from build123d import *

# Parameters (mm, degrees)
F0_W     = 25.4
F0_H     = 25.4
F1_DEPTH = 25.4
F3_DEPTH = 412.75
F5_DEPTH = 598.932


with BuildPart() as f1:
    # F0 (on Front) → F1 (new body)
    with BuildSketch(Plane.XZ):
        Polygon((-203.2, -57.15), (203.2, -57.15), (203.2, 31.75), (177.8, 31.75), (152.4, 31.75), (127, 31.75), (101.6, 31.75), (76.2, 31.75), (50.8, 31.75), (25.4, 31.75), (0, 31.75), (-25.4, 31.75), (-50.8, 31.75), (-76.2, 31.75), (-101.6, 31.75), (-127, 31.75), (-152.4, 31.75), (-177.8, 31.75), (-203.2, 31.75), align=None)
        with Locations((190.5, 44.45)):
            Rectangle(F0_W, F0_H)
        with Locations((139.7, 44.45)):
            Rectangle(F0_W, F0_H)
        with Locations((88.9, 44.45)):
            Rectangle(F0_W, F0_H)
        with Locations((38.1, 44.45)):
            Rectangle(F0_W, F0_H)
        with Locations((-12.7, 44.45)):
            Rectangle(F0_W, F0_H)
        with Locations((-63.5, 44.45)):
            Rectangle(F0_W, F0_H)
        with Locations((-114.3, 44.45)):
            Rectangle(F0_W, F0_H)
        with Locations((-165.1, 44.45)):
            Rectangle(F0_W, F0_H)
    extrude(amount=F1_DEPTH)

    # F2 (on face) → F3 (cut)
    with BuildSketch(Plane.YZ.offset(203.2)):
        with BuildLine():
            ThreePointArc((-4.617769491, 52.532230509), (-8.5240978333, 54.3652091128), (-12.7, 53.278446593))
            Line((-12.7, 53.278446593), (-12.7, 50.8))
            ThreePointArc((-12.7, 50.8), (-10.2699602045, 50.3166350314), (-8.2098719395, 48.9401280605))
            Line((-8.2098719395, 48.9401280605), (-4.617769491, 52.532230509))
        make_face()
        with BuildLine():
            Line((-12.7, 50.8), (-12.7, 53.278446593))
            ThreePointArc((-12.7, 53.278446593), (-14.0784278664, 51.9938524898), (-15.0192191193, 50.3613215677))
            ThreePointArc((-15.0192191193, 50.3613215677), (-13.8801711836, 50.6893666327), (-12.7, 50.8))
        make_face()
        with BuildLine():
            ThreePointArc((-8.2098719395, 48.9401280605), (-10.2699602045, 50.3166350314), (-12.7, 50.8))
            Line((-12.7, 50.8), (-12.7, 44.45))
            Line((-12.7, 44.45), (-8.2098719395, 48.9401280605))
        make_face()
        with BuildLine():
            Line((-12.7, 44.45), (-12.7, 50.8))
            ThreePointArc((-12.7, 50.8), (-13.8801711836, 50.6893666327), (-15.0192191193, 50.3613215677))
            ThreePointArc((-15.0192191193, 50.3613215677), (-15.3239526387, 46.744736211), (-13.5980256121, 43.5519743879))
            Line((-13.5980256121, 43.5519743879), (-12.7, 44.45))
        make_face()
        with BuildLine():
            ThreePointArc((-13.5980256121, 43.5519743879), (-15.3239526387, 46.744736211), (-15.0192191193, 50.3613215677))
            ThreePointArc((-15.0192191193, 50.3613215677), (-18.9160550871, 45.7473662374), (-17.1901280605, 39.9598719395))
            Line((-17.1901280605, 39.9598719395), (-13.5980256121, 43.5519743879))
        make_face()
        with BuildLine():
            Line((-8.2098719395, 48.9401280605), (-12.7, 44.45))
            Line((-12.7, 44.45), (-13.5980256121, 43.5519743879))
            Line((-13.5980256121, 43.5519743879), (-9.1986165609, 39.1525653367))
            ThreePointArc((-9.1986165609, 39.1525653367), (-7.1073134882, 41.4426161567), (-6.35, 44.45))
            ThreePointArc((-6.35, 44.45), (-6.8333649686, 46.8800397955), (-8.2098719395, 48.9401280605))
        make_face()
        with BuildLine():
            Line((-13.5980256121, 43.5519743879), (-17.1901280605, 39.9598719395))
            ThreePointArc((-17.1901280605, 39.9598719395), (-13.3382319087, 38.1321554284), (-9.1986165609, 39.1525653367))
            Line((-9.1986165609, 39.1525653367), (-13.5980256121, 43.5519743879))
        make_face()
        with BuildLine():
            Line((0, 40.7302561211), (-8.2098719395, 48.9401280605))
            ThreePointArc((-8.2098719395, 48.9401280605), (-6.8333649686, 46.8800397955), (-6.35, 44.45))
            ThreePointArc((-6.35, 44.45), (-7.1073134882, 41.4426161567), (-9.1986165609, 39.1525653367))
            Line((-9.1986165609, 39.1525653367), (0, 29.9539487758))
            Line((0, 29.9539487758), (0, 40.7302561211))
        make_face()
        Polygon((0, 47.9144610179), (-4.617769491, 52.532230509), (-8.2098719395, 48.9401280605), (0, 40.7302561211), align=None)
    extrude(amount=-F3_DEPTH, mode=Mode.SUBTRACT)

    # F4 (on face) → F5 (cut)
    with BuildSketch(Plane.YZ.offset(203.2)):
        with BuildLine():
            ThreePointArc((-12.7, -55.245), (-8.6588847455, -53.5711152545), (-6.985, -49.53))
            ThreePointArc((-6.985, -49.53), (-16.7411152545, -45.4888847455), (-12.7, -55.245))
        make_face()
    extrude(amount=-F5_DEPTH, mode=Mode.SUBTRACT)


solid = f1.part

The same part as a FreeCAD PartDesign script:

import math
import FreeCAD as App
import Part
import Sketcher
Q = App.Units.Quantity

doc = App.newDocument("Part")
body = doc.addObject("PartDesign::Body", "Body")

sketch1 = body.newObject("Sketcher::SketchObject", "Sketch")
sketch1.AttachmentSupport = (doc.getObject("XZ_Plane"), [""])
sketch1.MapMode = "FlatFace"
sketch1.addGeometry(Part.LineSegment(App.Vector(-203, -57, 0), App.Vector(203, -57, 0)), False)
sketch1.addGeometry(Part.LineSegment(App.Vector(203, -57, 0), App.Vector(203, 57, 0)), False)
sketch1.addGeometry(Part.LineSegment(App.Vector(203, 57, 0), App.Vector(178, 57, 0)), False)
sketch1.addGeometry(Part.LineSegment(App.Vector(178, 57, 0), App.Vector(178, 32, 0)), False)
sketch1.addGeometry(Part.LineSegment(App.Vector(178, 32, 0), App.Vector(152, 32, 0)), False)
sketch1.addGeometry(Part.LineSegment(App.Vector(152, 32, 0), App.Vector(152, 57, 0)), False)
sketch1.addGeometry(Part.LineSegment(App.Vector(152, 57, 0), App.Vector(127, 57, 0)), False)
sketch1.addGeometry(Part.LineSegment(App.Vector(127, 57, 0), App.Vector(127, 32, 0)), False)
sketch1.addGeometry(Part.LineSegment(App.Vector(127, 32, 0), App.Vector(102, 32, 0)), False)
sketch1.addGeometry(Part.LineSegment(App.Vector(102, 32, 0), App.Vector(102, 57, 0)), False)
sketch1.addGeometry(Part.LineSegment(App.Vector(102, 57, 0), App.Vector(76, 57, 0)), False)
sketch1.addGeometry(Part.LineSegment(App.Vector(76, 57, 0), App.Vector(76, 32, 0)), False)
sketch1.addGeometry(Part.LineSegment(App.Vector(76, 32, 0), App.Vector(51, 32, 0)), False)
sketch1.addGeometry(Part.LineSegment(App.Vector(51, 32, 0), App.Vector(51, 57, 0)), False)
sketch1.addGeometry(Part.LineSegment(App.Vector(51, 57, 0), App.Vector(25, 57, 0)), False)
sketch1.addGeometry(Part.LineSegment(App.Vector(25, 57, 0), App.Vector(25, 32, 0)), False)
sketch1.addGeometry(Part.LineSegment(App.Vector(25, 32, 0), App.Vector(0, 32, 0)), False)
sketch1.addGeometry(Part.LineSegment(App.Vector(0, 32, 0), App.Vector(0, 57, 0)), False)
sketch1.addGeometry(Part.LineSegment(App.Vector(0, 57, 0), App.Vector(-25, 57, 0)), False)
sketch1.addGeometry(Part.LineSegment(App.Vector(-25, 57, 0), App.Vector(-25, 32, 0)), False)
sketch1.addGeometry(Part.LineSegment(App.Vector(-25, 32, 0), App.Vector(-51, 32, 0)), False)
sketch1.addGeometry(Part.LineSegment(App.Vector(-51, 32, 0), App.Vector(-51, 57, 0)), False)
sketch1.addGeometry(Part.LineSegment(App.Vector(-51, 57, 0), App.Vector(-76, 57, 0)), False)
sketch1.addGeometry(Part.LineSegment(App.Vector(-76, 57, 0), App.Vector(-76, 32, 0)), False)
sketch1.addGeometry(Part.LineSegment(App.Vector(-76, 32, 0), App.Vector(-102, 32, 0)), False)
sketch1.addGeometry(Part.LineSegment(App.Vector(-102, 32, 0), App.Vector(-102, 57, 0)), False)
sketch1.addGeometry(Part.LineSegment(App.Vector(-102, 57, 0), App.Vector(-127, 57, 0)), False)
sketch1.addGeometry(Part.LineSegment(App.Vector(-127, 57, 0), App.Vector(-127, 32, 0)), False)
sketch1.addGeometry(Part.LineSegment(App.Vector(-127, 32, 0), App.Vector(-152, 32, 0)), False)
sketch1.addGeometry(Part.LineSegment(App.Vector(-152, 32, 0), App.Vector(-152, 57, 0)), False)
sketch1.addGeometry(Part.LineSegment(App.Vector(-152, 57, 0), App.Vector(-178, 57, 0)), False)
sketch1.addGeometry(Part.LineSegment(App.Vector(-178, 57, 0), App.Vector(-178, 32, 0)), False)
sketch1.addGeometry(Part.LineSegment(App.Vector(-178, 32, 0), App.Vector(-203, 32, 0)), False)
sketch1.addGeometry(Part.LineSegment(App.Vector(-203, 32, 0), App.Vector(-203, -57, 0)), False)
sketch1.addConstraint(Sketcher.Constraint("Coincident", 0, 2, 1, 1))
sketch1.addConstraint(Sketcher.Constraint("Coincident", 1, 2, 2, 1))
sketch1.addConstraint(Sketcher.Constraint("Coincident", 2, 2, 3, 1))
sketch1.addConstraint(Sketcher.Constraint("Coincident", 3, 2, 4, 1))
sketch1.addConstraint(Sketcher.Constraint("Coincident", 4, 2, 5, 1))
sketch1.addConstraint(Sketcher.Constraint("Coincident", 5, 2, 6, 1))
sketch1.addConstraint(Sketcher.Constraint("Coincident", 6, 2, 7, 1))
sketch1.addConstraint(Sketcher.Constraint("Coincident", 7, 2, 8, 1))
sketch1.addConstraint(Sketcher.Constraint("Coincident", 8, 2, 9, 1))
sketch1.addConstraint(Sketcher.Constraint("Coincident", 9, 2, 10, 1))
sketch1.addConstraint(Sketcher.Constraint("Coincident", 10, 2, 11, 1))
sketch1.addConstraint(Sketcher.Constraint("Coincident", 11, 2, 12, 1))
sketch1.addConstraint(Sketcher.Constraint("Coincident", 12, 2, 13, 1))
sketch1.addConstraint(Sketcher.Constraint("Coincident", 13, 2, 14, 1))
sketch1.addConstraint(Sketcher.Constraint("Coincident", 14, 2, 15, 1))
sketch1.addConstraint(Sketcher.Constraint("Coincident", 15, 2, 16, 1))
sketch1.addConstraint(Sketcher.Constraint("Coincident", 16, 2, 17, 1))
sketch1.addConstraint(Sketcher.Constraint("Coincident", 17, 2, 18, 1))
sketch1.addConstraint(Sketcher.Constraint("Coincident", 18, 2, 19, 1))
sketch1.addConstraint(Sketcher.Constraint("Coincident", 19, 2, 20, 1))
sketch1.addConstraint(Sketcher.Constraint("Coincident", 20, 2, 21, 1))
sketch1.addConstraint(Sketcher.Constraint("Coincident", 21, 2, 22, 1))
sketch1.addConstraint(Sketcher.Constraint("Coincident", 22, 2, 23, 1))
sketch1.addConstraint(Sketcher.Constraint("Coincident", 23, 2, 24, 1))
sketch1.addConstraint(Sketcher.Constraint("Coincident", 24, 2, 25, 1))
sketch1.addConstraint(Sketcher.Constraint("Coincident", 25, 2, 26, 1))
sketch1.addConstraint(Sketcher.Constraint("Coincident", 26, 2, 27, 1))
sketch1.addConstraint(Sketcher.Constraint("Coincident", 27, 2, 28, 1))
sketch1.addConstraint(Sketcher.Constraint("Coincident", 28, 2, 29, 1))
sketch1.addConstraint(Sketcher.Constraint("Coincident", 29, 2, 30, 1))
sketch1.addConstraint(Sketcher.Constraint("Coincident", 30, 2, 31, 1))
sketch1.addConstraint(Sketcher.Constraint("Coincident", 31, 2, 32, 1))
sketch1.addConstraint(Sketcher.Constraint("Coincident", 32, 2, 33, 1))
sketch1.addConstraint(Sketcher.Constraint("Coincident", 33, 2, 0, 1))
sketch1.addConstraint(Sketcher.Constraint("Horizontal", 0))
sketch1.addConstraint(Sketcher.Constraint("Vertical", 1))
sketch1.addConstraint(Sketcher.Constraint("Horizontal", 2))
sketch1.addConstraint(Sketcher.Constraint("Vertical", 3))
sketch1.addConstraint(Sketcher.Constraint("Horizontal", 4))
sketch1.addConstraint(Sketcher.Constraint("Vertical", 5))
sketch1.addConstraint(Sketcher.Constraint("Horizontal", 6))
sketch1.addConstraint(Sketcher.Constraint("Vertical", 7))
sketch1.addConstraint(Sketcher.Constraint("Horizontal", 8))
sketch1.addConstraint(Sketcher.Constraint("Vertical", 9))
sketch1.addConstraint(Sketcher.Constraint("Horizontal", 10))
sketch1.addConstraint(Sketcher.Constraint("Vertical", 11))
sketch1.addConstraint(Sketcher.Constraint("Horizontal", 12))
sketch1.addConstraint(Sketcher.Constraint("Vertical", 13))
sketch1.addConstraint(Sketcher.Constraint("Horizontal", 14))
sketch1.addConstraint(Sketcher.Constraint("Vertical", 15))
sketch1.addConstraint(Sketcher.Constraint("Horizontal", 16))
sketch1.addConstraint(Sketcher.Constraint("Vertical", 17))
sketch1.addConstraint(Sketcher.Constraint("Horizontal", 18))
sketch1.addConstraint(Sketcher.Constraint("Vertical", 19))
sketch1.addConstraint(Sketcher.Constraint("Horizontal", 20))
sketch1.addConstraint(Sketcher.Constraint("Vertical", 21))
sketch1.addConstraint(Sketcher.Constraint("Horizontal", 22))
sketch1.addConstraint(Sketcher.Constraint("Vertical", 23))
sketch1.addConstraint(Sketcher.Constraint("Horizontal", 24))
sketch1.addConstraint(Sketcher.Constraint("Vertical", 25))
sketch1.addConstraint(Sketcher.Constraint("Horizontal", 26))
sketch1.addConstraint(Sketcher.Constraint("Vertical", 27))
sketch1.addConstraint(Sketcher.Constraint("Horizontal", 28))
sketch1.addConstraint(Sketcher.Constraint("Vertical", 29))
sketch1.addConstraint(Sketcher.Constraint("Horizontal", 30))
sketch1.addConstraint(Sketcher.Constraint("Vertical", 31))
sketch1.addConstraint(Sketcher.Constraint("Horizontal", 32))
sketch1.addConstraint(Sketcher.Constraint("Vertical", 33))
sketch1.addConstraint(Sketcher.Constraint("Symmetric", 1, 2, 33, 2, -1, 1))
sketch1.addConstraint(Sketcher.Constraint("Symmetric", 14, 2, 18, 2, -2))
sketch1.addConstraint(Sketcher.Constraint("Symmetric", 12, 2, 20, 2, -2))
sketch1.addConstraint(Sketcher.Constraint("Symmetric", 10, 2, 22, 2, -2))
sketch1.addConstraint(Sketcher.Constraint("Symmetric", 8, 2, 24, 2, -2))
sketch1.addConstraint(Sketcher.Constraint("Symmetric", 6, 2, 26, 2, -2))
sketch1.addConstraint(Sketcher.Constraint("Symmetric", 4, 2, 28, 2, -2))
sketch1.addConstraint(Sketcher.Constraint("Symmetric", 2, 2, 30, 2, -2))
sketch1.addConstraint(Sketcher.Constraint("PointOnObject", 16, 2, -2))
sketch1.addConstraint(Sketcher.Constraint("Horizontal", 2, 2, 5, 2))
sketch1.addConstraint(Sketcher.Constraint("Horizontal", 4, 2, 7, 2))
sketch1.addConstraint(Sketcher.Constraint("Horizontal", 6, 2, 9, 2))
sketch1.addConstraint(Sketcher.Constraint("Horizontal", 8, 2, 11, 2))
sketch1.addConstraint(Sketcher.Constraint("Horizontal", 10, 2, 13, 2))
sketch1.addConstraint(Sketcher.Constraint("Horizontal", 12, 2, 15, 2))
sketch1.addConstraint(Sketcher.Constraint("Horizontal", 28, 2, 31, 2))
sketch1.addConstraint(Sketcher.Constraint("Equal", 2, 4))
sketch1.addConstraint(Sketcher.Constraint("Equal", 4, 6))
sketch1.addConstraint(Sketcher.Constraint("Equal", 6, 8))
sketch1.addConstraint(Sketcher.Constraint("Equal", 8, 10))
sketch1.addConstraint(Sketcher.Constraint("Equal", 10, 12))
sketch1.addConstraint(Sketcher.Constraint("Equal", 12, 14))
sketch1.addConstraint(Sketcher.Constraint("Equal", 14, 16))
sketch1.addConstraint(Sketcher.Constraint("Equal", 32, 3))
sketch1.addConstraint(Sketcher.Constraint("DistanceX", 0, 1, 0, 2, Q("16 in")))
sketch1.addConstraint(Sketcher.Constraint("DistanceY", 1, 1, 1, 2, Q("4.5 in")))
pad1 = body.newObject("PartDesign::Pad", "Pad")
pad1.Profile = sketch1
pad1.Length = Q("1 in")

sketch2 = body.newObject("Sketcher::SketchObject", "Sketch001")
sketch2.AttachmentSupport = (doc.getObject("YZ_Plane"), [""])
sketch2.MapMode = "FlatFace"
sketch2.AttachmentOffset = App.Placement(App.Vector(0, 0, 8 * 25.4), App.Rotation())
sketch2.addGeometry(Part.ArcOfCircle(Part.Circle(App.Vector(-9.1, 48, 0), App.Vector(0, 0, 1), 6.3), math.radians(45), math.radians(124)), False)
sketch2.addGeometry(Part.ArcOfCircle(Part.Circle(App.Vector(-9.1, 48, 0), App.Vector(0, 0, 1), 6.3), math.radians(124), math.radians(159)), False)
sketch2.addGeometry(Part.ArcOfCircle(Part.Circle(App.Vector(-12.7, 44.5, 0), App.Vector(0, 0, 1), 6.3), math.radians(111), math.radians(225)), False)
sketch2.addGeometry(Part.ArcOfCircle(Part.Circle(App.Vector(-12.7, 44.5, 0), App.Vector(0, 0, 1), 6.3), math.radians(-135), math.radians(-57)), False)
sketch2.addGeometry(Part.LineSegment(App.Vector(-9.2, 39.2, 0), App.Vector(0, 30, 0)), False)
sketch2.addGeometry(Part.LineSegment(App.Vector(0, 30, 0), App.Vector(0, 47.9, 0)), False)
sketch2.addGeometry(Part.LineSegment(App.Vector(0, 47.9, 0), App.Vector(-4.6, 52.5, 0)), False)
sketch2.addConstraint(Sketcher.Constraint("Tangent", 0, 2, 1, 1))
sketch2.addConstraint(Sketcher.Constraint("Coincident", 1, 2, 2, 1))
sketch2.addConstraint(Sketcher.Constraint("Tangent", 2, 2, 3, 1))
sketch2.addConstraint(Sketcher.Constraint("Coincident", 3, 2, 4, 1))
sketch2.addConstraint(Sketcher.Constraint("Coincident", 4, 2, 5, 1))
sketch2.addConstraint(Sketcher.Constraint("Coincident", 5, 2, 6, 1))
sketch2.addConstraint(Sketcher.Constraint("Tangent", 6, 2, 0, 1))
sketch2.addConstraint(Sketcher.Constraint("Vertical", 5))
sketch2.addConstraint(Sketcher.Constraint("Equal", 0, 1))
sketch2.addConstraint(Sketcher.Constraint("Equal", 1, 2))
sketch2.addConstraint(Sketcher.Constraint("Equal", 2, 3))
sketch2.addConstraint(Sketcher.Constraint("PointOnObject", 4, 2, -2))
sketch2.addConstraint(Sketcher.Constraint("Parallel", 4, 6))
sketch2.addConstraint(Sketcher.Constraint("Vertical", 3, 3, 0, 2))
sketch2.addConstraint(Sketcher.Constraint("Radius", 0, Q("0.25 in")))
sketch2.addConstraint(Sketcher.Constraint("Angle", 4, Q("-45 deg")))
sketch2.addConstraint(Sketcher.Constraint("DistanceX", 2, 3, -1, 1, Q("0.5 in")))
sketch2.addConstraint(Sketcher.Constraint("DistanceY", -1, 1, 2, 3, Q("1.75 in")))
sketch2.addConstraint(Sketcher.Constraint("Distance", 4, 13.008808))
sketch2.addConstraint(Sketcher.Constraint("DistanceY", 5, 1, 5, 2, 17.960512))
sketch2.addConstraint(Sketcher.Constraint("DistanceX", 1, 2, -1, 1, 15.019219))
sketch2.addConstraint(Sketcher.Constraint("DistanceX", 2, 2, -1, 1, 17.190128))
pocket1 = body.newObject("PartDesign::Pocket", "Pocket")
pocket1.Profile = sketch2
pocket1.Length = Q("16.25 in")

sketch3 = body.newObject("Sketcher::SketchObject", "Sketch002")
sketch3.AttachmentSupport = (doc.getObject("YZ_Plane"), [""])
sketch3.MapMode = "FlatFace"
sketch3.AttachmentOffset = App.Placement(App.Vector(0, 0, 8 * 25.4), App.Rotation())
sketch3.addGeometry(Part.ArcOfCircle(Part.Circle(App.Vector(-13, -50, 0), App.Vector(0, 0, 1), 6), math.radians(-90), math.radians(0)), False)
sketch3.addGeometry(Part.ArcOfCircle(Part.Circle(App.Vector(-13, -50, 0), App.Vector(0, 0, 1), 6), math.radians(0), math.radians(270)), False)
sketch3.addConstraint(Sketcher.Constraint("Tangent", 0, 1, 1, 2))
sketch3.addConstraint(Sketcher.Constraint("Coincident", 1, 1, 0, 2))
sketch3.addConstraint(Sketcher.Constraint("Horizontal", 0, 3, 1, 1))
sketch3.addConstraint(Sketcher.Constraint("Vertical", 1, 3, 0, 1))
sketch3.addConstraint(Sketcher.Constraint("Radius", 0, Q("0.225 in")))
sketch3.addConstraint(Sketcher.Constraint("DistanceX", 0, 3, -1, 1, Q("0.5 in")))
sketch3.addConstraint(Sketcher.Constraint("DistanceY", 0, 3, -1, 1, Q("1.95 in")))
pocket2 = body.newObject("PartDesign::Pocket", "Pocket001")
pocket2.Profile = sketch3
pocket2.Length = Q("23.58 in")

doc.recompute()
